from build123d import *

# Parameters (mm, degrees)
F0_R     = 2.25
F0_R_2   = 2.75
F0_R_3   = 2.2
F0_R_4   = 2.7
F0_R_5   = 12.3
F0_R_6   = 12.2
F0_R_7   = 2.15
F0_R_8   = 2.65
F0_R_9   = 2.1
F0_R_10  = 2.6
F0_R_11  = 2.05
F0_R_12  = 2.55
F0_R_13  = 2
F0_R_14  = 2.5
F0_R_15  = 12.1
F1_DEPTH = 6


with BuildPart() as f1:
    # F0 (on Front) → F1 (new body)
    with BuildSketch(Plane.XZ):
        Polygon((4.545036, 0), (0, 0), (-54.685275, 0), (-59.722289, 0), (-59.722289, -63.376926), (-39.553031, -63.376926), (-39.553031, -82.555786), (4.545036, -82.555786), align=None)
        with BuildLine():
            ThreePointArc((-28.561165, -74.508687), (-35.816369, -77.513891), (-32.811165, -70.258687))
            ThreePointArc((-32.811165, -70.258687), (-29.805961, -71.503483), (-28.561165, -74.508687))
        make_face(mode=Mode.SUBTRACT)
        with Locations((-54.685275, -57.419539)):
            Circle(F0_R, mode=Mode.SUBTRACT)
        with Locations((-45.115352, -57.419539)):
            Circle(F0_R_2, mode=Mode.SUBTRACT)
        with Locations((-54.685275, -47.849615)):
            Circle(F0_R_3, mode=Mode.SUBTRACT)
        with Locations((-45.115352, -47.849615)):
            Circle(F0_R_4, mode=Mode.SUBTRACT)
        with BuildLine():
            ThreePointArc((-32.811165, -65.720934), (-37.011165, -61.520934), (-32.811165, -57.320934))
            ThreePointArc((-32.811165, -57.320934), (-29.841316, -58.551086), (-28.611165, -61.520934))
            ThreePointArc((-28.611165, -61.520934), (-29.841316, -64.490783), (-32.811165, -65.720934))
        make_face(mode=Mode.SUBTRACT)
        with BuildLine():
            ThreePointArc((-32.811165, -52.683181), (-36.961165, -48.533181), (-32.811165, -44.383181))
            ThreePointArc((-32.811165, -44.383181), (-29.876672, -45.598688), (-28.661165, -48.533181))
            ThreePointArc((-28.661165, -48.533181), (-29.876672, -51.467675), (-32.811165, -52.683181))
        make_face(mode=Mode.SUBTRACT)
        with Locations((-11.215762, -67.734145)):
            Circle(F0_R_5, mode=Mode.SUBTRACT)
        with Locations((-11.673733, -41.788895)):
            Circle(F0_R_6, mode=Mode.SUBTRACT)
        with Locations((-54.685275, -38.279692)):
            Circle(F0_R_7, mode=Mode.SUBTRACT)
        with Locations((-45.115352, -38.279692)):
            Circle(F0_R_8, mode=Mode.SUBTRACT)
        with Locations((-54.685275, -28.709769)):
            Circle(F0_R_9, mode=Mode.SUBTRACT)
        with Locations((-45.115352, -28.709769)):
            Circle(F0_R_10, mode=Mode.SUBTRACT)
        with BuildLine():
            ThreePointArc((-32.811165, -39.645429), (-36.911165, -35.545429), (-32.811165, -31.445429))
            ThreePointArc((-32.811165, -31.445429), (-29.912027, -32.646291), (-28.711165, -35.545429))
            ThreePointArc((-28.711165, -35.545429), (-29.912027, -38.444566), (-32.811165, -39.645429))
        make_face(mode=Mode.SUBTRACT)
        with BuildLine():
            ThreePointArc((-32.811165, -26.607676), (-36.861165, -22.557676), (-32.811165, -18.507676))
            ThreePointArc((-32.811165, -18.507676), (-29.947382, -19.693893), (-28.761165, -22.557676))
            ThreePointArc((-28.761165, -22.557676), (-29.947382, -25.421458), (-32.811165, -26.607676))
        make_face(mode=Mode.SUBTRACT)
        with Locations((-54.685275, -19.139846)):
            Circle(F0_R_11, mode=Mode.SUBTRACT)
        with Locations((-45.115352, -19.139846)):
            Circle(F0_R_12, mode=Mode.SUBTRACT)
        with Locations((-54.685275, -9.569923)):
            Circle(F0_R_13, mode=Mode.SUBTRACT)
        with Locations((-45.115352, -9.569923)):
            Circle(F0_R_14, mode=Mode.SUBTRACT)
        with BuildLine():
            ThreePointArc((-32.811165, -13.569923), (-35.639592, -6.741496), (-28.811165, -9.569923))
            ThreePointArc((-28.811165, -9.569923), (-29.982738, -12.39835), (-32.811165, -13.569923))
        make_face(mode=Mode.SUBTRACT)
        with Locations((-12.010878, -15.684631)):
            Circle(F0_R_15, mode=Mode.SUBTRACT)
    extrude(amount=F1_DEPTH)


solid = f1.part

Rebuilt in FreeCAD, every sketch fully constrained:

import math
import FreeCAD as App
import Part
import Sketcher
from FreeCAD import Vector


def add_polygon(sketch, points):
    """Adds a closed chain of lines whose ends are joined by coincident constraints."""
    first, n = sketch.GeometryCount, len(points)
    for a, b in zip(points, points[1:] + points[:1]):
        sketch.addGeometry(Part.LineSegment(App.Vector(*a, 0), App.Vector(*b, 0)), False)
    for i in range(n):
        sketch.addConstraint(Sketcher.Constraint("Coincident", first + i, 2, first + (i + 1) % n, 1))

doc = App.newDocument("Part")
params = doc.addObject("Spreadsheet::Sheet", "Params")
for row, (alias, value) in enumerate([
    ("sketch1_diameter", "4 mm"),
    ("sketch1_diameter2", "5 mm"),
    ("sketch1_radius", "4 mm"),
    ("sketch1_diameter3", "4.5 mm"),
    ("sketch1_diameter4", "5.5 mm"),
    ("pad1_length", "6 mm"),
], start=1):
    params.set(f"A{row}", alias)
    params.set(f"B{row}", "=" + value)
    params.setAlias(f"B{row}", alias)

body = doc.addObject("PartDesign::Body", "Body")

sketch1 = doc.addObject("Sketcher::SketchObject", "Sketch")
body.addObject(sketch1)
sketch1.AttachmentSupport = (doc.XZ_Plane, [""])
sketch1.MapMode = "FlatFace"
add_polygon(sketch1, [(4.545036, 0), (-59.722289, 0), (-59.722289, -63.376926), (-39.553031, -63.376926), (-39.553031, -82.555786), (4.545036, -82.555786)])
sketch1.addGeometry(Part.ArcOfCircle(Part.Circle(Vector(-32.811164, -74.508686, 0), Vector(0, 0, 1), 4.249999), math.radians(-0.000008), math.radians(90.000008)), False)
sketch1.addGeometry(Part.ArcOfCircle(Part.Circle(Vector(-32.811165, -74.508687, 0), Vector(0, 0, 1), 4.25), math.radians(89.999999), math.radians(360.000001)), False)
sketch1.addGeometry(Part.ArcOfCircle(Part.Circle(Vector(-32.811163, -61.520936, 0), Vector(0, 0, 1), 4.199998), math.radians(-90.000024), math.radians(0.000024)), False)
sketch1.addGeometry(Part.ArcOfCircle(Part.Circle(Vector(-32.811165, -61.520934, 0), Vector(0, 0, 1), 4.2), math.radians(90), math.radians(270)), False)
sketch1.addGeometry(Part.ArcOfCircle(Part.Circle(Vector(-32.811165, -61.520934, 0), Vector(0, 0, 1), 4.2), math.radians(-0.000001), math.radians(90.000001)), False)
sketch1.addGeometry(Part.Circle(Vector(-54.685275, -57.419539, 0), Vector(0, 0, 1), 2.25), False)
sketch1.addGeometry(Part.Circle(Vector(-45.115352, -57.419539, 0), Vector(0, 0, 1), 2.75), False)
sketch1.addGeometry(Part.Circle(Vector(-54.685275, -47.849615, 0), Vector(0, 0, 1), 2.2), False)
sketch1.addGeometry(Part.Circle(Vector(-45.115352, -47.849615, 0), Vector(0, 0, 1), 2.7), False)
sketch1.addGeometry(Part.ArcOfCircle(Part.Circle(Vector(-32.811164, -48.533182, 0), Vector(0, 0, 1), 4.149999), math.radians(-90.000017), math.radians(0.000017)), False)
sketch1.addGeometry(Part.ArcOfCircle(Part.Circle(Vector(-32.811165, -48.533181, 0), Vector(0, 0, 1), 4.15), math.radians(90), math.radians(270)), False)
sketch1.addGeometry(Part.ArcOfCircle(Part.Circle(Vector(-32.811165, -48.533181, 0), Vector(0, 0, 1), 4.15), math.radians(0.000007), math.radians(89.999993)), False)
sketch1.addGeometry(Part.Circle(Vector(-11.215762, -67.734145, 0), Vector(0, 0, 1), 12.3), False)
sketch1.addGeometry(Part.Circle(Vector(-54.685275, -38.279692, 0), Vector(0, 0, 1), 2.15), False)
sketch1.addGeometry(Part.Circle(Vector(-45.115352, -38.279692, 0), Vector(0, 0, 1), 2.65), False)
sketch1.addGeometry(Part.Circle(Vector(-54.685275, -28.709769, 0), Vector(0, 0, 1), 2.1), False)
sketch1.addGeometry(Part.Circle(Vector(-45.115352, -28.709769, 0), Vector(0, 0, 1), 2.6), False)
sketch1.addGeometry(Part.ArcOfCircle(Part.Circle(Vector(-32.811166, -35.545428, 0), Vector(0, 0, 1), 4.100001), math.radians(-89.999986), math.radians(-0.000014)), False)
sketch1.addGeometry(Part.ArcOfCircle(Part.Circle(Vector(-32.811165, -35.545429, 0), Vector(0, 0, 1), 4.1), math.radians(90), math.radians(270)), False)
sketch1.addGeometry(Part.ArcOfCircle(Part.Circle(Vector(-32.811164, -35.545428, 0), Vector(0, 0, 1), 4.099999), math.radians(-0.000009), math.radians(90.000009)), False)
sketch1.addGeometry(Part.Circle(Vector(-54.685275, -19.139846, 0), Vector(0, 0, 1), 2.05), False)
sketch1.addGeometry(Part.Circle(Vector(-45.115352, -19.139846, 0), Vector(0, 0, 1), 2.55), False)
sketch1.addGeometry(Part.Circle(Vector(-54.685275, -9.569923, 0), Vector(0, 0, 1), 2), False)
sketch1.addGeometry(Part.Circle(Vector(-45.115352, -9.569923, 0), Vector(0, 0, 1), 2.5), False)
sketch1.addGeometry(Part.ArcOfCircle(Part.Circle(Vector(-32.811165, -22.557676, 0), Vector(0, 0, 1), 4.05), math.radians(-90.000002), math.radians(0.000002)), False)
sketch1.addGeometry(Part.ArcOfCircle(Part.Circle(Vector(-32.811165, -22.557676, 0), Vector(0, 0, 1), 4.05), math.radians(90), math.radians(270)), False)
sketch1.addGeometry(Part.ArcOfCircle(Part.Circle(Vector(-32.811163, -22.557674, 0), Vector(0, 0, 1), 4.049998), math.radians(-0.000026), math.radians(90.000026)), False)
sketch1.addGeometry(Part.ArcOfCircle(Part.Circle(Vector(-32.811165, -9.569923, 0), Vector(0, 0, 1), 4), math.radians(-89.999994), math.radians(-0.000006)), False)
sketch1.addGeometry(Part.ArcOfCircle(Part.Circle(Vector(-32.811165, -9.569923, 0), Vector(0, 0, 1), 4), math.radians(0.000001), math.radians(269.999999)), False)
sketch1.addGeometry(Part.Circle(Vector(-11.673733, -41.788895, 0), Vector(0, 0, 1), 12.2), False)
sketch1.addGeometry(Part.Circle(Vector(-12.010878, -15.684631, 0), Vector(0, 0, 1), 12.1), False)
sketch1.addConstraint([
    Sketcher.Constraint("Tangent", 6, 1, 7, 2),
    Sketcher.Constraint("Coincident", 7, 1, 6, 2),
    Sketcher.Constraint("Tangent", 8, 1, 9, 2),
    Sketcher.Constraint("Tangent", 9, 1, 10, 2),
    Sketcher.Constraint("Tangent", 10, 1, 8, 2),
    Sketcher.Constraint("Tangent", 15, 1, 16, 2),
    Sketcher.Constraint("Tangent", 16, 1, 17, 2),
    Sketcher.Constraint("Tangent", 17, 1, 15, 2),
    Sketcher.Constraint("Tangent", 23, 1, 24, 2),
    Sketcher.Constraint("Tangent", 24, 1, 25, 2),
    Sketcher.Constraint("Tangent", 25, 1, 23, 2),
    Sketcher.Constraint("Tangent", 30, 1, 31, 2),
    Sketcher.Constraint("Tangent", 31, 1, 32, 2),
    Sketcher.Constraint("Tangent", 32, 1, 30, 2),
    Sketcher.Constraint("Tangent", 33, 1, 34, 2),
    Sketcher.Constraint("Coincident", 34, 1, 33, 2),
    Sketcher.Constraint("Horizontal", 0),
    Sketcher.Constraint("Vertical", 1),
    Sketcher.Constraint("Horizontal", 2),
    Sketcher.Constraint("Vertical", 3),
    Sketcher.Constraint("Horizontal", 4),
    Sketcher.Constraint("Vertical", 5),
    Sketcher.Constraint("PointOnObject", 0, 2, -1),
    Sketcher.Constraint("Horizontal", 11, 3, 12, 3),
    Sketcher.Constraint("Horizontal", 13, 3, 14, 3),
    Sketcher.Constraint("Horizontal", 19, 3, 20, 3),
    Sketcher.Constraint("Horizontal", 21, 3, 22, 3),
    Sketcher.Constraint("Horizontal", 26, 3, 27, 3),
    Sketcher.Constraint("Horizontal", 28, 3, 29, 3),
    Sketcher.Constraint("Horizontal", 29, 3, 33, 3),
    Sketcher.Constraint("Horizontal", 7, 3, 6, 1),
    Sketcher.Constraint("Horizontal", 9, 3, 10, 1),
    Sketcher.Constraint("Horizontal", 16, 3, 17, 1),
    Sketcher.Constraint("Horizontal", 24, 3, 25, 1),
    Sketcher.Constraint("Horizontal", 31, 3, 32, 1),
    Sketcher.Constraint("Horizontal", 33, 3, 34, 1),
    Sketcher.Constraint("Vertical", 7, 3, 8, 3),
    Sketcher.Constraint("Vertical", 11, 3, 13, 3),
    Sketcher.Constraint("Vertical", 12, 3, 14, 3),
    Sketcher.Constraint("Vertical", 10, 3, 15, 3),
    Sketcher.Constraint("Vertical", 13, 3, 19, 3),
    Sketcher.Constraint("Vertical", 14, 3, 20, 3),
    Sketcher.Constraint("Vertical", 19, 3, 21, 3),
    Sketcher.Constraint("Vertical", 20, 3, 22, 3),
    Sketcher.Constraint("Vertical", 17, 3, 23, 3),
    Sketcher.Constraint("Vertical", 21, 3, 26, 3),
    Sketcher.Constraint("Vertical", 22, 3, 27, 3),
    Sketcher.Constraint("Vertical", 26, 3, 28, 3),
    Sketcher.Constraint("Vertical", 27, 3, 29, 3),
    Sketcher.Constraint("Vertical", 25, 3, 30, 3),
    Sketcher.Constraint("Vertical", 31, 3, 33, 3),
    Sketcher.Constraint("Vertical", 34, 3, 7, 1),
    Sketcher.Constraint("Vertical", 7, 1, 8, 1),
    Sketcher.Constraint("Vertical", 8, 1, 9, 1),
    Sketcher.Constraint("Vertical", 9, 1, 15, 1),
    Sketcher.Constraint("Vertical", 15, 1, 16, 1),
    Sketcher.Constraint("Vertical", 16, 1, 23, 1),
    Sketcher.Constraint("Vertical", 23, 1, 24, 1),
    Sketcher.Constraint("Vertical", 24, 1, 30, 1),
    Sketcher.Constraint("Vertical", 30, 1, 31, 1),
    Sketcher.Constraint("Vertical", 31, 1, 33, 1),
    Sketcher.Constraint("Diameter", 28, 4.0),
    Sketcher.Constraint("Diameter", 29, 5.0),
    Sketcher.Constraint("Radius", 33, 4.0),
    Sketcher.Constraint("Diameter", 11, 4.5),
    Sketcher.Constraint("Diameter", 12, 5.5),
    Sketcher.Constraint("Diameter", 13, 4.4),
    Sketcher.Constraint("Diameter", 14, 5.4),
    Sketcher.Constraint("Diameter", 18, 24.6),
    Sketcher.Constraint("Diameter", 19, 4.3),
    Sketcher.Constraint("Diameter", 20, 5.3),
    Sketcher.Constraint("Diameter", 21, 4.2),
    Sketcher.Constraint("Diameter", 22, 5.2),
    Sketcher.Constraint("Diameter", 26, 4.1),
    Sketcher.Constraint("Diameter", 27, 5.1),
    Sketcher.Constraint("Diameter", 35, 24.4),
    Sketcher.Constraint("Diameter", 36, 24.2),
    Sketcher.Constraint("Radius", 8, 4.199998),
    Sketcher.Constraint("Radius", 23, 4.100001),
    Sketcher.Constraint("Radius", 6, 4.249999),
    Sketcher.Constraint("Radius", 15, 4.149999),
    Sketcher.Constraint("Radius", 30, 4.05),
    Sketcher.Constraint("DistanceX", 2, 1, 2, 2, 20.169258),
    Sketcher.Constraint("DistanceY", 3, 2, 3, 1, 19.17886),
    Sketcher.Constraint("DistanceX", 8, 3, 18, 3, 21.595401),
    Sketcher.Constraint("DistanceY", 3, 2, 7, 3, 8.047099),
    Sketcher.Constraint("DistanceX", 6, 3, 4, 2, 37.3562),
    Sketcher.Constraint("DistanceX", 0, 2, 0, 1, 64.267325),
    Sketcher.Constraint("DistanceY", 1, 2, 1, 1, 63.376926),
    Sketcher.Constraint("DistanceY", 11, 3, -1, 1, 57.419539),
    Sketcher.Constraint("DistanceY", 16, 3, -1, 1, 48.533181),
    Sketcher.Constraint("DistanceY", 19, 3, -1, 1, 38.279692),
    Sketcher.Constraint("DistanceY", 21, 3, -1, 1, 28.709769),
    Sketcher.Constraint("DistanceY", 24, 3, -1, 1, 35.545429),
    Sketcher.Constraint("DistanceY", 36, 3, -1, 1, 15.684631),
    Sketcher.Constraint("DistanceX", 0, 2, -1, 1, 59.722289),
    Sketcher.Constraint("DistanceY", 6, 3, 8, 3, 12.987751),
    Sketcher.Constraint("DistanceX", 11, 3, 9, 3, 21.87411),
    Sketcher.Constraint("DistanceX", 12, 3, 8, 3, 12.304189),
    Sketcher.Constraint("DistanceY", 9, 3, 13, 3, 13.671319),
    Sketcher.Constraint("DistanceY", 18, 3, 8, 3, 6.213209),
    Sketcher.Constraint("DistanceY", 23, 3, 26, 3, 16.405582),
    Sketcher.Constraint("DistanceY", 19, 3, 28, 3, 28.709769),
    Sketcher.Constraint("DistanceY", 30, 3, 27, 3, 3.41783),
    Sketcher.Constraint("DistanceX", 25, 3, 35, 3, 21.137431),
    Sketcher.Constraint("DistanceY", 35, 3, -1, 1, 41.788895),
    Sketcher.Constraint("DistanceX", 36, 3, -1, 1, 12.010878),
])
sketch1.setExpression("Constraints[67]", "Params.sketch1_diameter")
sketch1.setExpression("Constraints[68]", "Params.sketch1_diameter2")
sketch1.setExpression("Constraints[69]", "Params.sketch1_radius")
sketch1.setExpression("Constraints[70]", "Params.sketch1_diameter3")
sketch1.setExpression("Constraints[71]", "Params.sketch1_diameter4")
pad1 = doc.addObject("PartDesign::Pad", "Pad")
body.addObject(pad1)
pad1.Profile = sketch1
pad1.setExpression("Length", "Params.pad1_length")

doc.recompute()
